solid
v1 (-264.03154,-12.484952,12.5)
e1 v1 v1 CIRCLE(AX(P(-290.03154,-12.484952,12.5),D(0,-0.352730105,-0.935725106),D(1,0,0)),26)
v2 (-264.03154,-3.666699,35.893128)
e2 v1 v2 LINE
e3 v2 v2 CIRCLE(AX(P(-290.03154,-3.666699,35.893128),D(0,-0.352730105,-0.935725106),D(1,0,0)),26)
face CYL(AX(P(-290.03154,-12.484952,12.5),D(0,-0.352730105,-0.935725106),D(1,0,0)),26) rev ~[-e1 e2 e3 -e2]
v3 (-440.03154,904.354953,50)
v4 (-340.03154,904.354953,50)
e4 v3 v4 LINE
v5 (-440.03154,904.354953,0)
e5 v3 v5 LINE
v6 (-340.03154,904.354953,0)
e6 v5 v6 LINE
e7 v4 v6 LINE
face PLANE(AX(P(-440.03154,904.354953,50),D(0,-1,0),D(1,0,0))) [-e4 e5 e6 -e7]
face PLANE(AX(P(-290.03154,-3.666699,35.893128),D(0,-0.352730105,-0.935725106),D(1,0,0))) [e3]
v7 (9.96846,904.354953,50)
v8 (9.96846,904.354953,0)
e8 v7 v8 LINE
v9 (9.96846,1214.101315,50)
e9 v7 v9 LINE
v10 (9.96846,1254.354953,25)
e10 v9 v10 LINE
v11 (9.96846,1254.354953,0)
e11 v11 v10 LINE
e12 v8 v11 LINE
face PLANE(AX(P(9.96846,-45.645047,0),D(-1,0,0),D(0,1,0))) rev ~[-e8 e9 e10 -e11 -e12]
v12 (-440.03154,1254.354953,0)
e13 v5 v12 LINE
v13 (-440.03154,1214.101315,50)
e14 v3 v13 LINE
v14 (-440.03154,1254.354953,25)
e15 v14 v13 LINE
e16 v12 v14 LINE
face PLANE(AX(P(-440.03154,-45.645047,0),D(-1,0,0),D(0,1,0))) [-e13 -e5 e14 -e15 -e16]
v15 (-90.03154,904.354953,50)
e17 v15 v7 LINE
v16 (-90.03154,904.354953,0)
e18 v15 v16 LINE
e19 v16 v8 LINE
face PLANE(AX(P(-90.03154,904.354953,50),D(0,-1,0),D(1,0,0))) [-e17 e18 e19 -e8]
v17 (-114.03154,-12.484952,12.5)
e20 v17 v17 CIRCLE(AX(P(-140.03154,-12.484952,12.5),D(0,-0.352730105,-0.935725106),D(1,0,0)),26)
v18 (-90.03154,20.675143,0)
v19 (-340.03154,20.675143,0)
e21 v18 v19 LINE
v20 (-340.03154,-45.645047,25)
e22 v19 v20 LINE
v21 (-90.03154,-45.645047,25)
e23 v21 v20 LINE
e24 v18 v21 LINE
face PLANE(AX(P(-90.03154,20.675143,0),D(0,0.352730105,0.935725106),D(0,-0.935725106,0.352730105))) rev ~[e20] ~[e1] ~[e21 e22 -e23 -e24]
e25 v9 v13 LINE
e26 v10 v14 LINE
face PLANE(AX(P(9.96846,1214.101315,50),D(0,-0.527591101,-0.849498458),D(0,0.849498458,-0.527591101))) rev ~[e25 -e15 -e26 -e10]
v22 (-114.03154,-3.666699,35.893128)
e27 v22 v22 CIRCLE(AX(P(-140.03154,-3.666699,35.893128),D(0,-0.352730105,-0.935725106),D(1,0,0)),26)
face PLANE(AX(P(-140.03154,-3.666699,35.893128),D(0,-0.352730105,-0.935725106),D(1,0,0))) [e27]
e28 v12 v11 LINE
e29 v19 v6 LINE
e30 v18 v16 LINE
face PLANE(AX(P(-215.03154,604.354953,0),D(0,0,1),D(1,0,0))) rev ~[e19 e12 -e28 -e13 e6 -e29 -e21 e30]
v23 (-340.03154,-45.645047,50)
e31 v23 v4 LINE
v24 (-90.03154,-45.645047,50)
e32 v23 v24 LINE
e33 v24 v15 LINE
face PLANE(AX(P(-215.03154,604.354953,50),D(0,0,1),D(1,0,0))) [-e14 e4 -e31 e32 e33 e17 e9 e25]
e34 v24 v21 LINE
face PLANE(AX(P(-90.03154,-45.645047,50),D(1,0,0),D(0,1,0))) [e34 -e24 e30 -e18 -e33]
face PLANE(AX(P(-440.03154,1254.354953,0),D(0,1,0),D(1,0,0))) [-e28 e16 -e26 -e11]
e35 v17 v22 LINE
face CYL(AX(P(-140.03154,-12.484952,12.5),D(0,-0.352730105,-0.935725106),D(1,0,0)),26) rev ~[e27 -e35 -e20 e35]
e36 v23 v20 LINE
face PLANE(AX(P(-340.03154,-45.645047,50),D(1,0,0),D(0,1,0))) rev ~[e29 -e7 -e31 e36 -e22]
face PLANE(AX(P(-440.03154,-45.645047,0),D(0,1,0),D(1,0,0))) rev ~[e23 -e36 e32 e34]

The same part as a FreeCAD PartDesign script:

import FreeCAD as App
import Part
import Sketcher

V = App.Vector
Q = App.Units.Quantity

doc = App.newDocument("Part")
body = doc.addObject("PartDesign::Body", "Body")

# Sketch on XY plane
sketch1 = body.newObject("Sketcher::SketchObject", "Sketch")
sketch1.AttachmentSupport = (doc.getObject("XY_Plane"), [""])
sketch1.MapMode = "FlatFace"
sketch1.addGeometry([
    Part.LineSegment(V(-440.03154, 1254.354953, 0), V(-440.03154, -45.645047, 0)),
    Part.LineSegment(V(-440.03154, -45.645047, 0), V(9.96846, -45.645047, 0)),
    Part.LineSegment(V(9.96846, -45.645047, 0), V(9.96846, 1254.354953, 0)),
    Part.LineSegment(V(9.96846, 1254.354953, 0), V(-440.03154, 1254.354953, 0)),
], False)
sketch1.addConstraint([
    Sketcher.Constraint("Coincident", 0, 2, 1, 1),
    Sketcher.Constraint("Coincident", 1, 2, 2, 1),
    Sketcher.Constraint("Coincident", 2, 2, 3, 1),
    Sketcher.Constraint("Coincident", 3, 2, 0, 1),
    Sketcher.Constraint("Vertical", 0),
    Sketcher.Constraint("Horizontal", 1),
    Sketcher.Constraint("Vertical", 2),
    Sketcher.Constraint("Horizontal", 3),
    Sketcher.Constraint("DistanceX", 1, 1, 1, 2, Q("450 mm")),
    Sketcher.Constraint("DistanceY", 0, 2, 0, 1, Q("1300 mm")),
    Sketcher.Constraint("DistanceX", 0, 2, -1, 1, Q("440.03154 mm")),
    Sketcher.Constraint("DistanceY", 0, 2, -1, 1, Q("45.645047 mm")),
])
pad1 = body.newObject("PartDesign::Pad", "Pad")
pad1.Profile = sketch1
pad1.Length = 50

# Sketch on XY plane
sketch2 = body.newObject("Sketcher::SketchObject", "Sketch001")
sketch2.AttachmentSupport = (doc.getObject("XY_Plane"), [""])
sketch2.MapMode = "FlatFace"
sketch2.AttachmentOffset = App.Placement(V(0, 0, 50), App.Rotation())
sketch2.addGeometry([
    Part.LineSegment(V(-440.03154, 904.354953, 0), V(-440.03154, -45.645047, 0)),  # 0
    Part.LineSegment(V(-440.03154, -45.645047, 0), V(-340.03154, -45.645047, 0)),  # 1
    Part.LineSegment(V(-340.03154, -45.645047, 0), V(-340.03154, 904.354953, 0)),  # 2
    Part.LineSegment(V(-340.03154, 904.354953, 0), V(-440.03154, 904.354953, 0)),  # 3
    Part.LineSegment(V(-90.03154, 904.354953, 0), V(-90.03154, -45.645047, 0)),  # 4
    Part.LineSegment(V(-90.03154, -45.645047, 0), V(9.96846, -45.645047, 0)),  # 5
    Part.LineSegment(V(9.96846, -45.645047, 0), V(9.96846, 904.354953, 0)),  # 6
    Part.LineSegment(V(9.96846, 904.354953, 0), V(-90.03154, 904.354953, 0)),  # 7
], False)
sketch2.addConstraint([
    Sketcher.Constraint("Coincident", 0, 2, 1, 1),
    Sketcher.Constraint("Coincident", 1, 2, 2, 1),
    Sketcher.Constraint("Coincident", 2, 2, 3, 1),
    Sketcher.Constraint("Coincident", 3, 2, 0, 1),
    Sketcher.Constraint("Coincident", 4, 2, 5, 1),
    Sketcher.Constraint("Coincident", 5, 2, 6, 1),
    Sketcher.Constraint("Coincident", 6, 2, 7, 1),
    Sketcher.Constraint("Coincident", 7, 2, 4, 1),
    Sketcher.Constraint("Vertical", 0),
    Sketcher.Constraint("Horizontal", 1),
    Sketcher.Constraint("Vertical", 2),
    Sketcher.Constraint("Horizontal", 3),
    Sketcher.Constraint("Vertical", 4),
    Sketcher.Constraint("Horizontal", 5),
    Sketcher.Constraint("Vertical", 6),
    Sketcher.Constraint("Horizontal", 7),
    Sketcher.Constraint("Horizontal", 1, 2, 4, 2),
    Sketcher.Constraint("Horizontal", 3, 2, 6, 2),
    Sketcher.Constraint("Equal", 3, 5),
    Sketcher.Constraint("DistanceX", 1, 1, 1, 2, Q("100 mm")),
    Sketcher.Constraint("DistanceY", 0, 2, 0, 1, Q("950 mm")),
    Sketcher.Constraint("DistanceX", 1, 2, 4, 2, Q("250 mm")),
    Sketcher.Constraint("DistanceX", 0, 2, -1, 1, Q("440.03154 mm")),
    Sketcher.Constraint("DistanceY", 0, 2, -1, 1, Q("45.645047 mm")),
])
pocket1 = body.newObject("PartDesign::Pocket", "Pocket")
pocket1.Profile = sketch2
pocket1.Type = "ThroughAll"

# Sketch on YZ plane
sketch3 = body.newObject("Sketcher::SketchObject", "Sketch002")
sketch3.AttachmentSupport = (doc.getObject("YZ_Plane"), [""])
sketch3.MapMode = "FlatFace"
sketch3.AttachmentOffset = App.Placement(V(0, 0, -90.03154), App.Rotation())
sketch3.addGeometry([
    Part.LineSegment(V(20.675143, 0, 0), V(-45.645047, 25, 0)),
    Part.LineSegment(V(-45.645047, 25, 0), V(-45.645047, 0, 0)),
    Part.LineSegment(V(-45.645047, 0, 0), V(20.675143, 0, 0)),
], False)
sketch3.addConstraint([
    Sketcher.Constraint("Coincident", 0, 2, 1, 1),
    Sketcher.Constraint("Coincident", 1, 2, 2, 1),
    Sketcher.Constraint("Coincident", 2, 2, 0, 1),
    Sketcher.Constraint("Vertical", 1),
    Sketcher.Constraint("Horizontal", 2),
    Sketcher.Constraint("PointOnObject", 1, 2, -1),
    Sketcher.Constraint("DistanceY", 1, 2, 1, 1, Q("25 mm")),
    Sketcher.Constraint("DistanceX", 2, 1, 2, 2, Q("66.32019 mm")),
    Sketcher.Constraint("DistanceX", 0, 2, -1, 1, Q("45.645047 mm")),
])
pocket2 = body.newObject("PartDesign::Pocket", "Pocket001")
pocket2.Profile = sketch3
pocket2.Type = "ThroughAll"

# Sketch on YZ plane
sketch4 = body.newObject("Sketcher::SketchObject", "Sketch003")
sketch4.AttachmentSupport = (doc.getObject("YZ_Plane"), [""])
sketch4.MapMode = "FlatFace"
sketch4.AttachmentOffset = App.Placement(V(0, 0, 9.96846), App.Rotation())
sketch4.addGeometry([
    Part.LineSegment(V(1214.101315, 50, 0), V(1254.354953, 25, 0)),
    Part.LineSegment(V(1254.354953, 25, 0), V(1254.354953, 50, 0)),
    Part.LineSegment(V(1254.354953, 50, 0), V(1214.101315, 50, 0)),
], False)
sketch4.addConstraint([
    Sketcher.Constraint("Coincident", 0, 2, 1, 1),
    Sketcher.Constraint("Coincident", 1, 2, 2, 1),
    Sketcher.Constraint("Coincident", 2, 2, 0, 1),
    Sketcher.Constraint("Vertical", 1),
    Sketcher.Constraint("Horizontal", 2),
    Sketcher.Constraint("DistanceY", 1, 1, 1, 2, Q("25 mm")),
    Sketcher.Constraint("DistanceY", -1, 1, 0, 2, Q("25 mm")),
    Sketcher.Constraint("DistanceX", 2, 2, 2, 1, Q("40.253638 mm")),
    Sketcher.Constraint("DistanceX", -1, 1, 0, 2, Q("1254.354953 mm")),
])
pocket3 = body.newObject("PartDesign::Pocket", "Pocket002")
pocket3.Profile = sketch4
pocket3.Type = "ThroughAll"

# Sketch on an angled plane
sketch5 = body.newObject("Sketcher::SketchObject", "Sketch004")
sketch5.Placement = App.Placement(V(0, 2.572371, 6.824005), App.Rotation(V(1, 0, 0), V(0, -0.935725106, 0.352730105), V(0, -0.352730105, -0.935725106), "ZXY"))
sketch5.addGeometry([
    Part.Circle(V(-140.03154, 16.091609, 0), V(0, 0, 1), 26),
    Part.Circle(V(-290.03154, 16.091609, 0), V(0, 0, 1), 26),
], False)
sketch5.addConstraint([
    Sketcher.Constraint("Equal", 0, 1),
    Sketcher.Constraint("Horizontal", 0, 3, 1, 3),
    Sketcher.Constraint("Diameter", 0, Q("52 mm")),
    Sketcher.Constraint("DistanceX", 1, 3, 0, 3, Q("150 mm")),
    Sketcher.Constraint("DistanceX", 0, 3, -1, 1, Q("140.03154 mm")),
    Sketcher.Constraint("DistanceY", -1, 1, 0, 3, Q("16.091609 mm")),
])
pocket4 = body.newObject("PartDesign::Pocket", "Pocket003")
pocket4.Profile = sketch5
pocket4.Length = 25

doc.recompute()
